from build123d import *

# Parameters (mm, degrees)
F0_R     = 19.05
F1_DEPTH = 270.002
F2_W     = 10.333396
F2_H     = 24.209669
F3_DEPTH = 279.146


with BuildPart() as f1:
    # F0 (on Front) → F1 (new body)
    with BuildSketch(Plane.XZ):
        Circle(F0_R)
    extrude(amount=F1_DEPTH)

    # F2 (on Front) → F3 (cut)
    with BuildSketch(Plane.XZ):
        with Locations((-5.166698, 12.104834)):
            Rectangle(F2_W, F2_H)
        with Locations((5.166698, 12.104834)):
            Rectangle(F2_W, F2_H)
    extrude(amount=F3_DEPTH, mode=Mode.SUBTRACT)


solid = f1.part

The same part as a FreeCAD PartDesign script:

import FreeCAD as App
import Part
import Sketcher

V = App.Vector
Q = App.Units.Quantity


def add_polygon(sketch, points):
    """Adds a closed chain of lines whose ends are joined by coincident constraints."""
    first, n = sketch.GeometryCount, len(points)
    for a, b in zip(points, points[1:] + points[:1]):
        sketch.addGeometry(Part.LineSegment(App.Vector(*a, 0), App.Vector(*b, 0)), False)
    for i in range(n):
        sketch.addConstraint(Sketcher.Constraint("Coincident", first + i, 2, first + (i + 1) % n, 1))

doc = App.newDocument("Part")
body = doc.addObject("PartDesign::Body", "Body")

# Sketch on XZ plane
sketch1 = body.newObject("Sketcher::SketchObject", "Sketch")
sketch1.AttachmentSupport = (doc.getObject("XZ_Plane"), [""])
sketch1.MapMode = "FlatFace"
sketch1.addGeometry(Part.Circle(V(0, 0, 0), V(0, 0, 1), 19), False)
sketch1.addConstraint([
    Sketcher.Constraint("Coincident", 0, 3, -1, 1),
    Sketcher.Constraint("Diameter", 0, Q("1.5 in")),
])
pad1 = body.newObject("PartDesign::Pad", "Pad")
pad1.Profile = sketch1
pad1.Length = Q("10.63 in")

# Sketch on XZ plane
sketch2 = body.newObject("Sketcher::SketchObject", "Sketch001")
sketch2.AttachmentSupport = (doc.getObject("XZ_Plane"), [""])
sketch2.MapMode = "FlatFace"
add_polygon(sketch2, [(-10, 24), (-10, 0), (10, 0), (10, 24)])  # lines 0-3
sketch2.addConstraint([
    Sketcher.Constraint("Vertical", 0),
    Sketcher.Constraint("Horizontal", 1),
    Sketcher.Constraint("Vertical", 2),
    Sketcher.Constraint("Horizontal", 3),
    Sketcher.Constraint("Symmetric", 0, 2, 1, 2, -1, 1),
    Sketcher.Constraint("DistanceY", 0, 2, 0, 1, 24.209669),
    Sketcher.Constraint("DistanceX", 1, 1, 1, 2, 20.666792),
])
pocket1 = body.newObject("PartDesign::Pocket", "Pocket")
pocket1.Profile = sketch2
pocket1.Length = Q("10.99 in")
pocket1.Reversed = True

doc.recompute()
